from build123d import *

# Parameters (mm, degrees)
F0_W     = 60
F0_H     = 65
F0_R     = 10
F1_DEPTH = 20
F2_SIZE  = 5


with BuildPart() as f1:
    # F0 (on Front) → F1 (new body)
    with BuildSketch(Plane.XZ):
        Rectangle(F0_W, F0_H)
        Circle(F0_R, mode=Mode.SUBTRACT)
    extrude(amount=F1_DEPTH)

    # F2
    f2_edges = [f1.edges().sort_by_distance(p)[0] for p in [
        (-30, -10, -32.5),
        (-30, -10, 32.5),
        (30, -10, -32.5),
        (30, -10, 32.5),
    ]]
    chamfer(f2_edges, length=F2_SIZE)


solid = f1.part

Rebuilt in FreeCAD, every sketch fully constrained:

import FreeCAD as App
import Part
import Sketcher

V = App.Vector
Q = App.Units.Quantity


def edges_at(feature, points):
    """Names of the edges that pass closest to the given points."""
    edges = feature.Shape.Edges
    near = lambda p: min(range(len(edges)), key=lambda i: edges[i].distToShape(Part.Vertex(*p))[0])
    return sorted({f"Edge{near(p) + 1}" for p in points})


def add_polygon(sketch, points):
    """Adds a closed chain of lines whose ends are joined by coincident constraints."""
    first, n = sketch.GeometryCount, len(points)
    for a, b in zip(points, points[1:] + points[:1]):
        sketch.addGeometry(Part.LineSegment(App.Vector(*a, 0), App.Vector(*b, 0)), False)
    for i in range(n):
        sketch.addConstraint(Sketcher.Constraint("Coincident", first + i, 2, first + (i + 1) % n, 1))

doc = App.newDocument("Part")
params = doc.addObject("Spreadsheet::Sheet", "Params")
for row, (alias, value) in enumerate([
    ("sketch1_diameter", "20 mm"),
    ("sketch1_width", "60 mm"),
    ("sketch1_height", "65 mm"),
    ("pad1_length", "20 mm"),
    ("chamfer_size", "5 mm"),
], start=1):
    params.set(f"A{row}", alias)
    params.set(f"B{row}", "=" + value)
    params.setAlias(f"B{row}", alias)

body = doc.addObject("PartDesign::Body", "Body")

# Sketch on XZ plane
sketch1 = body.newObject("Sketcher::SketchObject", "Sketch")
sketch1.AttachmentSupport = (doc.getObject("XZ_Plane"), [""])
sketch1.MapMode = "FlatFace"
add_polygon(sketch1, [(-30, 32.5), (-30, -32.5), (30, -32.5), (30, 32.5)])  # lines 0-3
sketch1.addGeometry(Part.Circle(V(0, 0, 0), V(0, 0, 1), 10), False)  # 4
sketch1.addConstraint([
    Sketcher.Constraint("Vertical", 0),
    Sketcher.Constraint("Horizontal", 1),
    Sketcher.Constraint("Vertical", 2),
    Sketcher.Constraint("Horizontal", 3),
    Sketcher.Constraint("Coincident", 4, 3, -1, 1),
    Sketcher.Constraint("Symmetric", 0, 2, 2, 2, -1, 1),
    Sketcher.Constraint("Diameter", 4, Q("20 mm")),
    Sketcher.Constraint("DistanceX", 1, 1, 1, 2, Q("60 mm")),
    Sketcher.Constraint("DistanceY", 0, 2, 0, 1, Q("65 mm")),
])
sketch1.setExpression("Constraints[10]", "Params.sketch1_diameter")
sketch1.setExpression("Constraints[11]", "Params.sketch1_width")
sketch1.setExpression("Constraints[12]", "Params.sketch1_height")
pad1 = body.newObject("PartDesign::Pad", "Pad")
pad1.Profile = sketch1
pad1.setExpression("Length", "Params.pad1_length")
doc.recompute()

chamfer = body.newObject("PartDesign::Chamfer", "Chamfer")
chamfer.Base = (pad1, edges_at(pad1, [
    (-30, -10, -32.5),
    (-30, -10, 32.5),
    (30, -10, -32.5),
    (30, -10, 32.5),
]))
chamfer.setExpression("Size", "Params.chamfer_size")

doc.recompute()
